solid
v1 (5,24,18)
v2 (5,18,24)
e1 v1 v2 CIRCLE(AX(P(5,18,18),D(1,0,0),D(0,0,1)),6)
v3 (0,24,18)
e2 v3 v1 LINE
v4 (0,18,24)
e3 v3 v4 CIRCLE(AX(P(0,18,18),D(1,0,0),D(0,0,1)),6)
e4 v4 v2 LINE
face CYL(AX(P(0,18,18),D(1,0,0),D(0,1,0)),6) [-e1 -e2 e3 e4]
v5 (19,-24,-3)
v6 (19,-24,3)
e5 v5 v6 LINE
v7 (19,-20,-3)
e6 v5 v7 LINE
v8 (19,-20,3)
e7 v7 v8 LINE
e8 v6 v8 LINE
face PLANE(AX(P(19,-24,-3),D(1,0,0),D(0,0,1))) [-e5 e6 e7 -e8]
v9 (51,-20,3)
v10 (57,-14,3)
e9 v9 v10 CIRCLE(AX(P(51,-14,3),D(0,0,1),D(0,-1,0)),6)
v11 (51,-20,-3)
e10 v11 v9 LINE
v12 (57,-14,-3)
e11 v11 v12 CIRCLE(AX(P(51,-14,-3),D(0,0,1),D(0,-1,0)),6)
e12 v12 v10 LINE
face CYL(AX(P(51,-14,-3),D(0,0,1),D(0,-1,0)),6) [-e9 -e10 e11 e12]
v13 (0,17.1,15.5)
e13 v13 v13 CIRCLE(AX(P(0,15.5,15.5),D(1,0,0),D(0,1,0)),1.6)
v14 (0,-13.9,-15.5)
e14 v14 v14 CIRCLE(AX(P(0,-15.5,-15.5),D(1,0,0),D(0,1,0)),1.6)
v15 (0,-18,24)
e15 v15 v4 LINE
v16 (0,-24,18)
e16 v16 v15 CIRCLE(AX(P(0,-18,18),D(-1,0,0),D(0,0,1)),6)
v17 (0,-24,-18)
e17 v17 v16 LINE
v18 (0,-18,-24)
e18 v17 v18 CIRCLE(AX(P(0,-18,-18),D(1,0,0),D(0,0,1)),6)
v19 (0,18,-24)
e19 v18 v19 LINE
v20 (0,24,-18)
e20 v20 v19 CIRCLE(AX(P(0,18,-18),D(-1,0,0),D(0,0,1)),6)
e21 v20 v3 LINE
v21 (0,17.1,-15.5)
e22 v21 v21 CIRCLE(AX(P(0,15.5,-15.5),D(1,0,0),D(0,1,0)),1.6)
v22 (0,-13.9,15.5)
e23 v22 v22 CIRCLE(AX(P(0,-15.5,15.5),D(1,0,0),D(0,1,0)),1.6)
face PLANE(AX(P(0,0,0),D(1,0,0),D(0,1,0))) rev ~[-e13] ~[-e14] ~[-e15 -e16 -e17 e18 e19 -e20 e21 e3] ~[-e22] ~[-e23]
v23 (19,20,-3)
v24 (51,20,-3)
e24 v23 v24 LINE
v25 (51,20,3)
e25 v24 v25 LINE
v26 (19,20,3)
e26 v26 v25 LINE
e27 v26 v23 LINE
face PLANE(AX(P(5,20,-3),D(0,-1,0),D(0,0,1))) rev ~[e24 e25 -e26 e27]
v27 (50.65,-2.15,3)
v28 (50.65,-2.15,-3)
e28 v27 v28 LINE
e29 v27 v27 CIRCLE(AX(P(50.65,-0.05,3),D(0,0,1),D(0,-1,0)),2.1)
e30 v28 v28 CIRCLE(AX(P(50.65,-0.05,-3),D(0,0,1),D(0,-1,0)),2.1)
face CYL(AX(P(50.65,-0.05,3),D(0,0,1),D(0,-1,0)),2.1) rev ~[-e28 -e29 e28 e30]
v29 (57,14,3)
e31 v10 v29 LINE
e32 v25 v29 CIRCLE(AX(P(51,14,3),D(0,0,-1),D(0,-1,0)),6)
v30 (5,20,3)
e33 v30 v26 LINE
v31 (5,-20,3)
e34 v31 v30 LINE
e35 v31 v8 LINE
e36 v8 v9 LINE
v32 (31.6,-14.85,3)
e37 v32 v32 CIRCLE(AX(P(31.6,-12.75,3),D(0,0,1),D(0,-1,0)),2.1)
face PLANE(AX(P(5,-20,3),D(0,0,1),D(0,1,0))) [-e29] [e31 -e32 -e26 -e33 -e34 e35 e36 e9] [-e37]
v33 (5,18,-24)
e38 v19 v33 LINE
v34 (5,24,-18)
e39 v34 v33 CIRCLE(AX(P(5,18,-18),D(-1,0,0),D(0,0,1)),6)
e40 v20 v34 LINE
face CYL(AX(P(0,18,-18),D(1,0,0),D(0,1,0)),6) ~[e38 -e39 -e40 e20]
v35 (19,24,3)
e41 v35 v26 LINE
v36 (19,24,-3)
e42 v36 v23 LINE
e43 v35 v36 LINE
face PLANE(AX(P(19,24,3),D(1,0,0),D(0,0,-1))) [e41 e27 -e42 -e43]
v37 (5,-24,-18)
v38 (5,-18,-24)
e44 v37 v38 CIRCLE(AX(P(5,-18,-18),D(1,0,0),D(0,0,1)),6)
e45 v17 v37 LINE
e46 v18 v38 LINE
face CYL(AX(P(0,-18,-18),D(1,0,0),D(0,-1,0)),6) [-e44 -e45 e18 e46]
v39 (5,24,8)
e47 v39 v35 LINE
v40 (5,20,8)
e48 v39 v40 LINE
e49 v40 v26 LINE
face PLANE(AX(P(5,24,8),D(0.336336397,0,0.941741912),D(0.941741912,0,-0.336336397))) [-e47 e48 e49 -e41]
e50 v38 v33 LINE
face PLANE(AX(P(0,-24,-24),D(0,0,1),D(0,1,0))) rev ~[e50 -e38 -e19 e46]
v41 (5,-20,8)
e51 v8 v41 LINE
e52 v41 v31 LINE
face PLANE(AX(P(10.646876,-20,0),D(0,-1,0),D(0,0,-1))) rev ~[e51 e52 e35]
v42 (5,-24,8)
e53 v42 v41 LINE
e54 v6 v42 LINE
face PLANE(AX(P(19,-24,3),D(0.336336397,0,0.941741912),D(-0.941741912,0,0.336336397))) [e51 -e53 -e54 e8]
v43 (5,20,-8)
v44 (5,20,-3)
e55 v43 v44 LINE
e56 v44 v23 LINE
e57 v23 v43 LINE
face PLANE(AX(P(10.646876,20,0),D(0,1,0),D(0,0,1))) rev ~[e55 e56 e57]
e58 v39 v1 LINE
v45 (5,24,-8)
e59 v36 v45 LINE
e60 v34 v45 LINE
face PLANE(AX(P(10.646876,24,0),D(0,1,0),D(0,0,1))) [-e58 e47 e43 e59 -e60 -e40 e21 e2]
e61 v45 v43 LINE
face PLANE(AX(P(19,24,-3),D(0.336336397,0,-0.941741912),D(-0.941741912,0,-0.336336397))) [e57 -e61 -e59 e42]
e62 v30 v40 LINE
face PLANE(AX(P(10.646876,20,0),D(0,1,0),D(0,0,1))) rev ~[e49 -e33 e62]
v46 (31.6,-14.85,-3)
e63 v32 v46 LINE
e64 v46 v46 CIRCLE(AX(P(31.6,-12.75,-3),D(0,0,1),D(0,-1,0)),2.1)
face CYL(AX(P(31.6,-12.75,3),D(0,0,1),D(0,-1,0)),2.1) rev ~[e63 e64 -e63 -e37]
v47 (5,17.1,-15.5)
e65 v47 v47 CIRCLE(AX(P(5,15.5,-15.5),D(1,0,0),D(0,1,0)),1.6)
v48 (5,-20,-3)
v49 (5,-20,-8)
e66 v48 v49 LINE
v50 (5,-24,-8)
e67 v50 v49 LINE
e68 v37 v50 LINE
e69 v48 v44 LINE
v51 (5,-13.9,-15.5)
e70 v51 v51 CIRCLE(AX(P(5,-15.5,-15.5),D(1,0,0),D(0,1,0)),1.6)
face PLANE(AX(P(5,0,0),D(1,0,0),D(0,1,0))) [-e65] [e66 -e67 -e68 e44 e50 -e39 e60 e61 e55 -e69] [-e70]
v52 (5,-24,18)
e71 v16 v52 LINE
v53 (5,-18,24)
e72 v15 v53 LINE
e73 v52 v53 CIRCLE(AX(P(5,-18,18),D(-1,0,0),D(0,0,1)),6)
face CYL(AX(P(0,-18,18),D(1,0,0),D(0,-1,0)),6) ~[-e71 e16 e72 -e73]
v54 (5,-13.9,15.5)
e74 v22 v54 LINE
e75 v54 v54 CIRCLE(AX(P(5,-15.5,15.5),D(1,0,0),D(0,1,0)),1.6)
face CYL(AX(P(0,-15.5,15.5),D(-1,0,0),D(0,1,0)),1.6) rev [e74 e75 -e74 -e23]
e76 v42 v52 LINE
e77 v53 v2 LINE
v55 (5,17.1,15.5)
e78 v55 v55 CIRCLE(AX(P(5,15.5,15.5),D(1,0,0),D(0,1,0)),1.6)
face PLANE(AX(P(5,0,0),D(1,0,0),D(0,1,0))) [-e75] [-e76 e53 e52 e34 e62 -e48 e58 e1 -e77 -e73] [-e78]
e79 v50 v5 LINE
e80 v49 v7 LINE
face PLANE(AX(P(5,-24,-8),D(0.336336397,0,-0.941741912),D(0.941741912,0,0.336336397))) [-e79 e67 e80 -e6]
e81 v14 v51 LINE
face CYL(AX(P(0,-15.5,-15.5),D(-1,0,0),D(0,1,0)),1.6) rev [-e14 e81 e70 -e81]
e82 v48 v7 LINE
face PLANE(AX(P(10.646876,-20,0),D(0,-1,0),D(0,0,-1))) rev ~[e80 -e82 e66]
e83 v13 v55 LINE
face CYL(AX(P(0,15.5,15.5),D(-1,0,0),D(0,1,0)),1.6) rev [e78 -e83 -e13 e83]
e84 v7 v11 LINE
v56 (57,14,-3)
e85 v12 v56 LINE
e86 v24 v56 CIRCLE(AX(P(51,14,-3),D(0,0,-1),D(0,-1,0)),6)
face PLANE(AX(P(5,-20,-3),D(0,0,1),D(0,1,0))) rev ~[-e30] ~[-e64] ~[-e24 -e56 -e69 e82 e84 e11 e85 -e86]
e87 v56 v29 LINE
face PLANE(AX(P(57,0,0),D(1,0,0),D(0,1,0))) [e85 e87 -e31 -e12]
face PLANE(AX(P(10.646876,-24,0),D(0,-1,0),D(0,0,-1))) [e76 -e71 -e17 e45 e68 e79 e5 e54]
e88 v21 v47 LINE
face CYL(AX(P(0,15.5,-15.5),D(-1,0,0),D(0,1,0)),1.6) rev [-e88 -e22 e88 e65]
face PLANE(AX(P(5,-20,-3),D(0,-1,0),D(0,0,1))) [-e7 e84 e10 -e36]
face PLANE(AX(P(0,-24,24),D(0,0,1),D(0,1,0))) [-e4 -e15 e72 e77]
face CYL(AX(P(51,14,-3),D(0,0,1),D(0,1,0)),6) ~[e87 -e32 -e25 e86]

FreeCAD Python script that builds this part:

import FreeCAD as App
import Part
import Sketcher

V = App.Vector
Q = App.Units.Quantity


def edges_at(feature, points):
    """Names of the edges that pass closest to the given points."""
    edges = feature.Shape.Edges
    near = lambda p: min(range(len(edges)), key=lambda i: edges[i].distToShape(Part.Vertex(*p))[0])
    return sorted({f"Edge{near(p) + 1}" for p in points})

doc = App.newDocument("Part")
body = doc.addObject("PartDesign::Body", "Body")

# Sketch on YZ plane
sketch1 = body.newObject("Sketcher::SketchObject", "Sketch")
sketch1.AttachmentSupport = (doc.getObject("YZ_Plane"), [""])
sketch1.MapMode = "FlatFace"
sketch1.addGeometry([
    Part.LineSegment(V(-24, 24, 0), V(-24, -24, 0)),  # 0
    Part.LineSegment(V(-24, -24, 0), V(24, -24, 0)),  # 1
    Part.LineSegment(V(24, -24, 0), V(24, 24, 0)),  # 2
    Part.LineSegment(V(24, 24, 0), V(-24, 24, 0)),  # 3
    Part.Circle(V(-15.5, -15.5, 0), V(0, 0, 1), 1.6),  # 4
    Part.Circle(V(15.5, -15.5, 0), V(0, 0, 1), 1.6),  # 5
    Part.Circle(V(-15.5, 15.5, 0), V(0, 0, 1), 1.6),  # 6
    Part.Circle(V(15.5, 15.5, 0), V(0, 0, 1), 1.6),  # 7
], False)
sketch1.addConstraint([
    Sketcher.Constraint("Coincident", 0, 2, 1, 1),
    Sketcher.Constraint("Coincident", 1, 2, 2, 1),
    Sketcher.Constraint("Coincident", 2, 2, 3, 1),
    Sketcher.Constraint("Coincident", 3, 2, 0, 1),
    Sketcher.Constraint("Vertical", 0),
    Sketcher.Constraint("Horizontal", 1),
    Sketcher.Constraint("Vertical", 2),
    Sketcher.Constraint("Horizontal", 3),
    Sketcher.Constraint("Equal", 4, 5),
    Sketcher.Constraint("Equal", 5, 6),
    Sketcher.Constraint("Equal", 6, 7),
    Sketcher.Constraint("Symmetric", 5, 3, 6, 3, -1, 1),
    Sketcher.Constraint("Symmetric", 4, 3, 7, 3, -1, 1),
    Sketcher.Constraint("Symmetric", 0, 2, 2, 2, -1, 1),
    Sketcher.Constraint("Symmetric", 4, 3, 5, 3, -2),
    Sketcher.Constraint("Equal", 3, 0),
    Sketcher.Constraint("Diameter", 4, Q("3.2 mm")),
    Sketcher.Constraint("DistanceX", 1, 1, 1, 2, Q("48 mm")),
    Sketcher.Constraint("DistanceX", 4, 3, 5, 3, Q("31 mm")),
    Sketcher.Constraint("DistanceY", 4, 3, 6, 3, Q("31 mm")),
])
pad1 = body.newObject("PartDesign::Pad", "Pad")
pad1.Profile = sketch1
pad1.Length = 5

# Sketch on YZ plane
sketch2 = body.newObject("Sketcher::SketchObject", "Sketch001")
sketch2.AttachmentSupport = (doc.getObject("YZ_Plane"), [""])
sketch2.MapMode = "FlatFace"
sketch2.AttachmentOffset = App.Placement(V(0, 0, 5), App.Rotation())
sketch2.addGeometry([
    Part.LineSegment(V(-20, 3, 0), V(-20, -3, 0)),
    Part.LineSegment(V(-20, -3, 0), V(20, -3, 0)),
    Part.LineSegment(V(20, -3, 0), V(20, 3, 0)),
    Part.LineSegment(V(20, 3, 0), V(-20, 3, 0)),
], False)
sketch2.addConstraint([
    Sketcher.Constraint("Coincident", 0, 2, 1, 1),
    Sketcher.Constraint("Coincident", 1, 2, 2, 1),
    Sketcher.Constraint("Coincident", 2, 2, 3, 1),
    Sketcher.Constraint("Coincident", 3, 2, 0, 1),
    Sketcher.Constraint("Vertical", 0),
    Sketcher.Constraint("Horizontal", 1),
    Sketcher.Constraint("Vertical", 2),
    Sketcher.Constraint("Horizontal", 3),
    Sketcher.Constraint("Symmetric", 0, 2, 2, 2, -1, 1),
    Sketcher.Constraint("DistanceX", 1, 1, 1, 2, Q("40 mm")),
    Sketcher.Constraint("DistanceY", 0, 2, 0, 1, Q("6 mm")),
])
pad2 = body.newObject("PartDesign::Pad", "Pad001")
pad2.Profile = sketch2
pad2.Length = 52

# Sketch on XZ plane
sketch3 = body.newObject("Sketcher::SketchObject", "Sketch002")
sketch3.AttachmentSupport = (doc.getObject("XZ_Plane"), [""])
sketch3.MapMode = "FlatFace"
sketch3.AttachmentOffset = App.Placement(V(0, 0, 24), App.Rotation())
sketch3.addGeometry([
    Part.LineSegment(V(5, 8, 0), V(5, -8, 0)),
    Part.LineSegment(V(5, -8, 0), V(19, -3, 0)),
    Part.LineSegment(V(19, -3, 0), V(19, 3, 0)),
    Part.LineSegment(V(19, 3, 0), V(5, 8, 0)),
], False)
sketch3.addConstraint([
    Sketcher.Constraint("Coincident", 0, 2, 1, 1),
    Sketcher.Constraint("Coincident", 1, 2, 2, 1),
    Sketcher.Constraint("Coincident", 2, 2, 3, 1),
    Sketcher.Constraint("Coincident", 3, 2, 0, 1),
    Sketcher.Constraint("Vertical", 0),
    Sketcher.Constraint("Vertical", 2),
    Sketcher.Constraint("Equal", 1, 3),
    Sketcher.Constraint("DistanceY", 0, 2, 0, 1, Q("16 mm")),
    Sketcher.Constraint("DistanceY", 2, 1, 2, 2, Q("6 mm")),
    Sketcher.Constraint("DistanceX", -1, 1, 0, 2, Q("5 mm")),
    Sketcher.Constraint("DistanceY", 0, 2, -1, 1, Q("8 mm")),
    Sketcher.Constraint("DistanceX", -1, 1, 1, 2, Q("19 mm")),
])
pad3 = body.newObject("PartDesign::Pad", "Pad002")
pad3.Profile = sketch3
pad3.Length = 4
pad3.Reversed = True

# Sketch on XZ plane
sketch4 = body.newObject("Sketcher::SketchObject", "Sketch003")
sketch4.AttachmentSupport = (doc.getObject("XZ_Plane"), [""])
sketch4.MapMode = "FlatFace"
sketch4.AttachmentOffset = App.Placement(V(0, 0, -24), App.Rotation())
sketch4.addGeometry([
    Part.LineSegment(V(5, -8, 0), V(5, 8, 0)),
    Part.LineSegment(V(5, 8, 0), V(19, 3, 0)),
    Part.LineSegment(V(19, 3, 0), V(19, -3, 0)),
    Part.LineSegment(V(19, -3, 0), V(5, -8, 0)),
], False)
sketch4.addConstraint([
    Sketcher.Constraint("Coincident", 0, 2, 1, 1),
    Sketcher.Constraint("Coincident", 1, 2, 2, 1),
    Sketcher.Constraint("Coincident", 2, 2, 3, 1),
    Sketcher.Constraint("Coincident", 3, 2, 0, 1),
    Sketcher.Constraint("Vertical", 0),
    Sketcher.Constraint("Vertical", 2),
    Sketcher.Constraint("Equal", 1, 3),
    Sketcher.Constraint("DistanceY", 0, 1, 0, 2, Q("16 mm")),
    Sketcher.Constraint("DistanceY", 2, 2, 2, 1, Q("6 mm")),
    Sketcher.Constraint("DistanceX", -1, 1, 0, 2, Q("5 mm")),
    Sketcher.Constraint("DistanceY", -1, 1, 0, 2, Q("8 mm")),
    Sketcher.Constraint("DistanceX", -1, 1, 1, 2, Q("19 mm")),
])
pad4 = body.newObject("PartDesign::Pad", "Pad003")
pad4.Profile = sketch4
pad4.Length = 4

# Sketch on XY plane
sketch5 = body.newObject("Sketcher::SketchObject", "Sketch004")
sketch5.AttachmentSupport = (doc.getObject("XY_Plane"), [""])
sketch5.MapMode = "FlatFace"
sketch5.AttachmentOffset = App.Placement(V(0, 0, 3), App.Rotation())
sketch5.addGeometry([
    Part.Circle(V(50.6, -0.1, 0), V(0, 0, 1), 2.1),
    Part.Circle(V(31.6, -12.8, 0), V(0, 0, 1), 2.1),
], False)
sketch5.addConstraint([
    Sketcher.Constraint("Equal", 0, 1),
    Sketcher.Constraint("Diameter", 0, Q("4.2 mm")),
    Sketcher.Constraint("DistanceX", -1, 1, 1, 3, Q("31.6 mm")),
    Sketcher.Constraint("DistanceY", 1, 3, 0, 3, Q("12.7 mm")),
    Sketcher.Constraint("DistanceX", -1, 1, 0, 3, Q("50.65 mm")),
    Sketcher.Constraint("DistanceY", 0, 3, -1, 1, Q("0.05 mm")),
])
pocket1 = body.newObject("PartDesign::Pocket", "Pocket")
pocket1.Profile = sketch5
pocket1.Length = 8
doc.recompute()

fillet = body.newObject("PartDesign::Fillet", "Fillet")
fillet.Base = (pocket1, edges_at(pocket1, [
    (2.5, -24, 24),
    (57, -20, 0),
    (57, 20, 0),
    (2.5, -24, -24),
    (2.5, 24, -24),
    (2.5, 24, 24),
]))
fillet.Radius = 6

doc.recompute()
